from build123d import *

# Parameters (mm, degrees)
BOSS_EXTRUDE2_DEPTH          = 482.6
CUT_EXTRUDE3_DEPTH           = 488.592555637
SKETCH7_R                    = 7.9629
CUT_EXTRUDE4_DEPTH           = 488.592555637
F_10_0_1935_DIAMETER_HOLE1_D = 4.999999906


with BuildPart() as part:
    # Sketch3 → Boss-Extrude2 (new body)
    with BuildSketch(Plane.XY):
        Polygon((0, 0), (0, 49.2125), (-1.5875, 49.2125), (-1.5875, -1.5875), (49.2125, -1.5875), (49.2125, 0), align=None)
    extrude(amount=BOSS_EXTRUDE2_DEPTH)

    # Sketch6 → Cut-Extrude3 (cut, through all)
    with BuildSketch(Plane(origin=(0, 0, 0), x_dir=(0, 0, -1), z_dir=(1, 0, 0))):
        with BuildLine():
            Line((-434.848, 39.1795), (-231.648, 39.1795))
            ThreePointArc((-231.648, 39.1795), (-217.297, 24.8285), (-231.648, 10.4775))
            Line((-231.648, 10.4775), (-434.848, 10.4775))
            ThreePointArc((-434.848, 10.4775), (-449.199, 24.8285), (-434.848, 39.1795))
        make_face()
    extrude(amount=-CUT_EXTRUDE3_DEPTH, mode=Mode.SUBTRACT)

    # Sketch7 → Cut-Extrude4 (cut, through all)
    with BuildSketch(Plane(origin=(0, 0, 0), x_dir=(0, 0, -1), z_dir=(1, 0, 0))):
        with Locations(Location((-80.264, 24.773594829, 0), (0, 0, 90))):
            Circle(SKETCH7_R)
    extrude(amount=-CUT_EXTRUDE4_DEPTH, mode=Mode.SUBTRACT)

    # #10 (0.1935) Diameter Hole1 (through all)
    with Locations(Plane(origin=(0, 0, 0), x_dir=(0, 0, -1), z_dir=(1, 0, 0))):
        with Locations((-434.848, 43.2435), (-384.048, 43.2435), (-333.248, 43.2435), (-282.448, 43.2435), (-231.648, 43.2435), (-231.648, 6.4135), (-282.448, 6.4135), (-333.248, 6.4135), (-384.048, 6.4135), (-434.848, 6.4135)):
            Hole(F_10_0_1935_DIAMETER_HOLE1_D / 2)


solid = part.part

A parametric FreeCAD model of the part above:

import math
import FreeCAD as App
import Part
import Sketcher

V = App.Vector
Q = App.Units.Quantity


def add_polygon(sketch, points):
    """Adds a closed chain of lines whose ends are joined by coincident constraints."""
    first, n = sketch.GeometryCount, len(points)
    for a, b in zip(points, points[1:] + points[:1]):
        sketch.addGeometry(Part.LineSegment(App.Vector(*a, 0), App.Vector(*b, 0)), False)
    for i in range(n):
        sketch.addConstraint(Sketcher.Constraint("Coincident", first + i, 2, first + (i + 1) % n, 1))

doc = App.newDocument("Part")
body = doc.addObject("PartDesign::Body", "Body")

# Sketch on XY plane
sketch1 = body.newObject("Sketcher::SketchObject", "Sketch")
sketch1.AttachmentSupport = (doc.getObject("XY_Plane"), [""])
sketch1.MapMode = "FlatFace"
add_polygon(sketch1, [(0, 0), (0, 49.2), (-1.6, 49.2), (-1.6, -1.6), (49.2, -1.6), (49.2, 0)])  # lines 0-5
sketch1.addConstraint([
    Sketcher.Constraint("Vertical", 0),
    Sketcher.Constraint("Horizontal", 1),
    Sketcher.Constraint("Vertical", 2),
    Sketcher.Constraint("Horizontal", 3),
    Sketcher.Constraint("Vertical", 4),
    Sketcher.Constraint("Horizontal", 5),
    Sketcher.Constraint("Coincident", 5, 2, -1, 1),
    Sketcher.Constraint("Equal", 5, 0),
    Sketcher.Constraint("Equal", 3, 2),
    Sketcher.Constraint("DistanceX", 3, 1, 3, 2, Q("2 in")),
    Sketcher.Constraint("DistanceX", 1, 2, 1, 1, Q("0.0625 in")),
])
pad1 = body.newObject("PartDesign::Pad", "Pad")
pad1.Profile = sketch1
pad1.Length = Q("19 in")

# Sketch on YZ plane
sketch2 = body.newObject("Sketcher::SketchObject", "Sketch001")
sketch2.AttachmentSupport = (doc.getObject("YZ_Plane"), [""])
sketch2.MapMode = "FlatFace"
sketch2.addGeometry([
    Part.LineSegment(V(39, 232, 0), V(39, 435, 0)),
    Part.ArcOfCircle(Part.Circle(V(25, 435, 0), V(0, 0, 1), 14), math.radians(0), math.radians(180)),
    Part.LineSegment(V(10, 435, 0), V(10, 232, 0)),
    Part.ArcOfCircle(Part.Circle(V(25, 232, 0), V(0, 0, 1), 14), math.radians(180), math.radians(360)),
], False)
sketch2.addConstraint([
    Sketcher.Constraint("Tangent", 0, 2, 1, 1),
    Sketcher.Constraint("Tangent", 1, 2, 2, 1),
    Sketcher.Constraint("Tangent", 2, 2, 3, 1),
    Sketcher.Constraint("Tangent", 3, 2, 0, 1),
    Sketcher.Constraint("Vertical", 0),
    Sketcher.Constraint("Vertical", 2),
    Sketcher.Constraint("DistanceY", 0, 1, 0, 2, Q("8 in")),
    Sketcher.Constraint("Radius", 1, Q("0.565 in")),
    Sketcher.Constraint("DistanceY", -1, 1, 1, 3, Q("17.12 in")),
    Sketcher.Constraint("DistanceX", -1, 1, 1, 3, Q("0.9775 in")),
])
pocket1 = body.newObject("PartDesign::Pocket", "Pocket")
pocket1.Profile = sketch2
pocket1.Type = "ThroughAll"

# Sketch on YZ plane
sketch3 = body.newObject("Sketcher::SketchObject", "Sketch002")
sketch3.AttachmentSupport = (doc.getObject("YZ_Plane"), [""])
sketch3.MapMode = "FlatFace"
sketch3.addGeometry(Part.Circle(V(25, 80, 0), V(0, 0, 1), 8), False)
sketch3.addConstraint([
    Sketcher.Constraint("Diameter", 0, Q("0.627 in")),
    Sketcher.Constraint("DistanceY", -1, 1, 0, 3, Q("3.16 in")),
    Sketcher.Constraint("DistanceX", -1, 1, 0, 3, Q("24.773595 mm")),
])
pocket2 = body.newObject("PartDesign::Pocket", "Pocket001")
pocket2.Profile = sketch3
pocket2.Type = "ThroughAll"

# Sketch on YZ plane
sketch4 = body.newObject("Sketcher::SketchObject", "Sketch003")
sketch4.AttachmentSupport = (doc.getObject("YZ_Plane"), [""])
sketch4.MapMode = "FlatFace"
sketch4.addGeometry([
    Part.Circle(V(43.2, 434.8, 0), V(0, 0, 1), 2.5),  # 0
    Part.Circle(V(43.2, 384, 0), V(0, 0, 1), 2.5),  # 1
    Part.Circle(V(43.2, 333.2, 0), V(0, 0, 1), 2.5),  # 2
    Part.Circle(V(43.2, 282.4, 0), V(0, 0, 1), 2.5),  # 3
    Part.Circle(V(43.2, 231.6, 0), V(0, 0, 1), 2.5),  # 4
    Part.Circle(V(6.4, 231.6, 0), V(0, 0, 1), 2.5),  # 5
    Part.Circle(V(6.4, 282.4, 0), V(0, 0, 1), 2.5),  # 6
    Part.Circle(V(6.4, 333.2, 0), V(0, 0, 1), 2.5),  # 7
    Part.Circle(V(6.4, 384, 0), V(0, 0, 1), 2.5),  # 8
    Part.Circle(V(6.4, 434.8, 0), V(0, 0, 1), 2.5),  # 9
], False)
sketch4.addConstraint([
    Sketcher.Constraint("Equal", 0, 1),
    Sketcher.Constraint("Equal", 1, 2),
    Sketcher.Constraint("Equal", 2, 3),
    Sketcher.Constraint("Equal", 3, 4),
    Sketcher.Constraint("Equal", 4, 5),
    Sketcher.Constraint("Equal", 5, 6),
    Sketcher.Constraint("Equal", 6, 7),
    Sketcher.Constraint("Equal", 7, 8),
    Sketcher.Constraint("Equal", 8, 9),
    Sketcher.Constraint("Horizontal", 4, 3, 5, 3),
    Sketcher.Constraint("Horizontal", 3, 3, 6, 3),
    Sketcher.Constraint("Horizontal", 2, 3, 7, 3),
    Sketcher.Constraint("Horizontal", 1, 3, 8, 3),
    Sketcher.Constraint("Horizontal", 0, 3, 9, 3),
    Sketcher.Constraint("Vertical", 0, 3, 1, 3),
    Sketcher.Constraint("Vertical", 1, 3, 2, 3),
    Sketcher.Constraint("Vertical", 2, 3, 3, 3),
    Sketcher.Constraint("Vertical", 3, 3, 4, 3),
    Sketcher.Constraint("Vertical", 5, 3, 6, 3),
    Sketcher.Constraint("Vertical", 6, 3, 7, 3),
    Sketcher.Constraint("Vertical", 7, 3, 8, 3),
    Sketcher.Constraint("Vertical", 8, 3, 9, 3),
    Sketcher.Constraint("DistanceY", 1, 3, 0, 3, Q("2 in")),
    Sketcher.Constraint("DistanceY", 2, 3, 1, 3, Q("2 in")),
    Sketcher.Constraint("DistanceY", 3, 3, 2, 3, Q("2 in")),
    Sketcher.Constraint("DistanceY", 4, 3, 3, 3, Q("2 in")),
    Sketcher.Constraint("Diameter", 0, Q("5 mm")),
    Sketcher.Constraint("DistanceY", -1, 1, 0, 3, Q("17.12 in")),
    Sketcher.Constraint("DistanceX", 5, 3, 4, 3, Q("1.45 in")),
    Sketcher.Constraint("DistanceX", -1, 1, 0, 3, Q("1.7025 in")),
])
doc.recompute()
hole = body.newObject("PartDesign::Hole", "Hole")
hole.Profile = sketch4
hole.ThreadType = "None"
hole.Diameter = 5
hole.DepthType = "ThroughAll"

doc.recompute()
